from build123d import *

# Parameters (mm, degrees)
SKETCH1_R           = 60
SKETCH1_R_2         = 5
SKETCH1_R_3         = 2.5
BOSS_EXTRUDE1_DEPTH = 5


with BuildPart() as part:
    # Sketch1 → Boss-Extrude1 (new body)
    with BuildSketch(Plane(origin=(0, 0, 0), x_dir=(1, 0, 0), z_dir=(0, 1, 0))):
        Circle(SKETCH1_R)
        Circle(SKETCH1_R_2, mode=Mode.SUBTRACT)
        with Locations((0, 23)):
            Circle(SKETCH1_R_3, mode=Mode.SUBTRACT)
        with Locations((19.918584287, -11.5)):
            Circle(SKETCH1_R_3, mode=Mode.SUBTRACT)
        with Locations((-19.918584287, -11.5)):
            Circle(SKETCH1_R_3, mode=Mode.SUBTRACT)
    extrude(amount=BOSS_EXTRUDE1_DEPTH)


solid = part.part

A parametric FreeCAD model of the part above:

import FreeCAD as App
import Part
import Sketcher

V = App.Vector
Q = App.Units.Quantity

doc = App.newDocument("Part")
params = doc.addObject("Spreadsheet::Sheet", "Params")
for row, (alias, value) in enumerate([
    ("sketch1_diameter", "120 mm"),
    ("sketch1_diameter2", "5 mm"),
    ("sketch1_diameter3", "10 mm"),
    ("pad1_length", "5 mm"),
], start=1):
    params.set(f"A{row}", alias)
    params.set(f"B{row}", "=" + value)
    params.setAlias(f"B{row}", alias)

body = doc.addObject("PartDesign::Body", "Body")

sketch1 = body.newObject("Sketcher::SketchObject", "Sketch")
sketch1.AttachmentSupport = (doc.getObject("XZ_Plane"), [""])
sketch1.MapMode = "FlatFace"
sketch1.addGeometry([
    Part.Circle(V(0, 0, 0), V(0, 0, 1), 60),
    Part.Circle(V(-19.9, 11.5, 0), V(0, 0, 1), 2.5),
    Part.Circle(V(19.9, 11.5, 0), V(0, 0, 1), 2.5),
    Part.Circle(V(0, 0, 0), V(0, 0, 1), 5),
    Part.Circle(V(0, -23, 0), V(0, 0, 1), 2.5),
], False)
sketch1.addConstraint([
    Sketcher.Constraint("Coincident", 0, 3, -1, 1),
    Sketcher.Constraint("Coincident", 3, 3, -1, 1),
    Sketcher.Constraint("Equal", 1, 2),
    Sketcher.Constraint("Equal", 2, 4),
    Sketcher.Constraint("Symmetric", 1, 3, 2, 3, -2),
    Sketcher.Constraint("PointOnObject", 4, 3, -2),
    Sketcher.Constraint("Diameter", 0, Q("120 mm")),
    Sketcher.Constraint("Diameter", 1, Q("5 mm")),
    Sketcher.Constraint("Diameter", 3, Q("10 mm")),
    Sketcher.Constraint("DistanceY", 4, 3, -1, 1, Q("23 mm")),
    Sketcher.Constraint("DistanceY", -1, 1, 1, 3, Q("11.5 mm")),
    Sketcher.Constraint("DistanceX", 1, 3, 2, 3, Q("39.837169 mm")),
])
sketch1.setExpression("Constraints[6]", "Params.sketch1_diameter")
sketch1.setExpression("Constraints[7]", "Params.sketch1_diameter2")
sketch1.setExpression("Constraints[8]", "Params.sketch1_diameter3")
pad1 = body.newObject("PartDesign::Pad", "Pad")
pad1.Profile = sketch1
pad1.setExpression("Length", "Params.pad1_length")
pad1.Reversed = True

doc.recompute()
